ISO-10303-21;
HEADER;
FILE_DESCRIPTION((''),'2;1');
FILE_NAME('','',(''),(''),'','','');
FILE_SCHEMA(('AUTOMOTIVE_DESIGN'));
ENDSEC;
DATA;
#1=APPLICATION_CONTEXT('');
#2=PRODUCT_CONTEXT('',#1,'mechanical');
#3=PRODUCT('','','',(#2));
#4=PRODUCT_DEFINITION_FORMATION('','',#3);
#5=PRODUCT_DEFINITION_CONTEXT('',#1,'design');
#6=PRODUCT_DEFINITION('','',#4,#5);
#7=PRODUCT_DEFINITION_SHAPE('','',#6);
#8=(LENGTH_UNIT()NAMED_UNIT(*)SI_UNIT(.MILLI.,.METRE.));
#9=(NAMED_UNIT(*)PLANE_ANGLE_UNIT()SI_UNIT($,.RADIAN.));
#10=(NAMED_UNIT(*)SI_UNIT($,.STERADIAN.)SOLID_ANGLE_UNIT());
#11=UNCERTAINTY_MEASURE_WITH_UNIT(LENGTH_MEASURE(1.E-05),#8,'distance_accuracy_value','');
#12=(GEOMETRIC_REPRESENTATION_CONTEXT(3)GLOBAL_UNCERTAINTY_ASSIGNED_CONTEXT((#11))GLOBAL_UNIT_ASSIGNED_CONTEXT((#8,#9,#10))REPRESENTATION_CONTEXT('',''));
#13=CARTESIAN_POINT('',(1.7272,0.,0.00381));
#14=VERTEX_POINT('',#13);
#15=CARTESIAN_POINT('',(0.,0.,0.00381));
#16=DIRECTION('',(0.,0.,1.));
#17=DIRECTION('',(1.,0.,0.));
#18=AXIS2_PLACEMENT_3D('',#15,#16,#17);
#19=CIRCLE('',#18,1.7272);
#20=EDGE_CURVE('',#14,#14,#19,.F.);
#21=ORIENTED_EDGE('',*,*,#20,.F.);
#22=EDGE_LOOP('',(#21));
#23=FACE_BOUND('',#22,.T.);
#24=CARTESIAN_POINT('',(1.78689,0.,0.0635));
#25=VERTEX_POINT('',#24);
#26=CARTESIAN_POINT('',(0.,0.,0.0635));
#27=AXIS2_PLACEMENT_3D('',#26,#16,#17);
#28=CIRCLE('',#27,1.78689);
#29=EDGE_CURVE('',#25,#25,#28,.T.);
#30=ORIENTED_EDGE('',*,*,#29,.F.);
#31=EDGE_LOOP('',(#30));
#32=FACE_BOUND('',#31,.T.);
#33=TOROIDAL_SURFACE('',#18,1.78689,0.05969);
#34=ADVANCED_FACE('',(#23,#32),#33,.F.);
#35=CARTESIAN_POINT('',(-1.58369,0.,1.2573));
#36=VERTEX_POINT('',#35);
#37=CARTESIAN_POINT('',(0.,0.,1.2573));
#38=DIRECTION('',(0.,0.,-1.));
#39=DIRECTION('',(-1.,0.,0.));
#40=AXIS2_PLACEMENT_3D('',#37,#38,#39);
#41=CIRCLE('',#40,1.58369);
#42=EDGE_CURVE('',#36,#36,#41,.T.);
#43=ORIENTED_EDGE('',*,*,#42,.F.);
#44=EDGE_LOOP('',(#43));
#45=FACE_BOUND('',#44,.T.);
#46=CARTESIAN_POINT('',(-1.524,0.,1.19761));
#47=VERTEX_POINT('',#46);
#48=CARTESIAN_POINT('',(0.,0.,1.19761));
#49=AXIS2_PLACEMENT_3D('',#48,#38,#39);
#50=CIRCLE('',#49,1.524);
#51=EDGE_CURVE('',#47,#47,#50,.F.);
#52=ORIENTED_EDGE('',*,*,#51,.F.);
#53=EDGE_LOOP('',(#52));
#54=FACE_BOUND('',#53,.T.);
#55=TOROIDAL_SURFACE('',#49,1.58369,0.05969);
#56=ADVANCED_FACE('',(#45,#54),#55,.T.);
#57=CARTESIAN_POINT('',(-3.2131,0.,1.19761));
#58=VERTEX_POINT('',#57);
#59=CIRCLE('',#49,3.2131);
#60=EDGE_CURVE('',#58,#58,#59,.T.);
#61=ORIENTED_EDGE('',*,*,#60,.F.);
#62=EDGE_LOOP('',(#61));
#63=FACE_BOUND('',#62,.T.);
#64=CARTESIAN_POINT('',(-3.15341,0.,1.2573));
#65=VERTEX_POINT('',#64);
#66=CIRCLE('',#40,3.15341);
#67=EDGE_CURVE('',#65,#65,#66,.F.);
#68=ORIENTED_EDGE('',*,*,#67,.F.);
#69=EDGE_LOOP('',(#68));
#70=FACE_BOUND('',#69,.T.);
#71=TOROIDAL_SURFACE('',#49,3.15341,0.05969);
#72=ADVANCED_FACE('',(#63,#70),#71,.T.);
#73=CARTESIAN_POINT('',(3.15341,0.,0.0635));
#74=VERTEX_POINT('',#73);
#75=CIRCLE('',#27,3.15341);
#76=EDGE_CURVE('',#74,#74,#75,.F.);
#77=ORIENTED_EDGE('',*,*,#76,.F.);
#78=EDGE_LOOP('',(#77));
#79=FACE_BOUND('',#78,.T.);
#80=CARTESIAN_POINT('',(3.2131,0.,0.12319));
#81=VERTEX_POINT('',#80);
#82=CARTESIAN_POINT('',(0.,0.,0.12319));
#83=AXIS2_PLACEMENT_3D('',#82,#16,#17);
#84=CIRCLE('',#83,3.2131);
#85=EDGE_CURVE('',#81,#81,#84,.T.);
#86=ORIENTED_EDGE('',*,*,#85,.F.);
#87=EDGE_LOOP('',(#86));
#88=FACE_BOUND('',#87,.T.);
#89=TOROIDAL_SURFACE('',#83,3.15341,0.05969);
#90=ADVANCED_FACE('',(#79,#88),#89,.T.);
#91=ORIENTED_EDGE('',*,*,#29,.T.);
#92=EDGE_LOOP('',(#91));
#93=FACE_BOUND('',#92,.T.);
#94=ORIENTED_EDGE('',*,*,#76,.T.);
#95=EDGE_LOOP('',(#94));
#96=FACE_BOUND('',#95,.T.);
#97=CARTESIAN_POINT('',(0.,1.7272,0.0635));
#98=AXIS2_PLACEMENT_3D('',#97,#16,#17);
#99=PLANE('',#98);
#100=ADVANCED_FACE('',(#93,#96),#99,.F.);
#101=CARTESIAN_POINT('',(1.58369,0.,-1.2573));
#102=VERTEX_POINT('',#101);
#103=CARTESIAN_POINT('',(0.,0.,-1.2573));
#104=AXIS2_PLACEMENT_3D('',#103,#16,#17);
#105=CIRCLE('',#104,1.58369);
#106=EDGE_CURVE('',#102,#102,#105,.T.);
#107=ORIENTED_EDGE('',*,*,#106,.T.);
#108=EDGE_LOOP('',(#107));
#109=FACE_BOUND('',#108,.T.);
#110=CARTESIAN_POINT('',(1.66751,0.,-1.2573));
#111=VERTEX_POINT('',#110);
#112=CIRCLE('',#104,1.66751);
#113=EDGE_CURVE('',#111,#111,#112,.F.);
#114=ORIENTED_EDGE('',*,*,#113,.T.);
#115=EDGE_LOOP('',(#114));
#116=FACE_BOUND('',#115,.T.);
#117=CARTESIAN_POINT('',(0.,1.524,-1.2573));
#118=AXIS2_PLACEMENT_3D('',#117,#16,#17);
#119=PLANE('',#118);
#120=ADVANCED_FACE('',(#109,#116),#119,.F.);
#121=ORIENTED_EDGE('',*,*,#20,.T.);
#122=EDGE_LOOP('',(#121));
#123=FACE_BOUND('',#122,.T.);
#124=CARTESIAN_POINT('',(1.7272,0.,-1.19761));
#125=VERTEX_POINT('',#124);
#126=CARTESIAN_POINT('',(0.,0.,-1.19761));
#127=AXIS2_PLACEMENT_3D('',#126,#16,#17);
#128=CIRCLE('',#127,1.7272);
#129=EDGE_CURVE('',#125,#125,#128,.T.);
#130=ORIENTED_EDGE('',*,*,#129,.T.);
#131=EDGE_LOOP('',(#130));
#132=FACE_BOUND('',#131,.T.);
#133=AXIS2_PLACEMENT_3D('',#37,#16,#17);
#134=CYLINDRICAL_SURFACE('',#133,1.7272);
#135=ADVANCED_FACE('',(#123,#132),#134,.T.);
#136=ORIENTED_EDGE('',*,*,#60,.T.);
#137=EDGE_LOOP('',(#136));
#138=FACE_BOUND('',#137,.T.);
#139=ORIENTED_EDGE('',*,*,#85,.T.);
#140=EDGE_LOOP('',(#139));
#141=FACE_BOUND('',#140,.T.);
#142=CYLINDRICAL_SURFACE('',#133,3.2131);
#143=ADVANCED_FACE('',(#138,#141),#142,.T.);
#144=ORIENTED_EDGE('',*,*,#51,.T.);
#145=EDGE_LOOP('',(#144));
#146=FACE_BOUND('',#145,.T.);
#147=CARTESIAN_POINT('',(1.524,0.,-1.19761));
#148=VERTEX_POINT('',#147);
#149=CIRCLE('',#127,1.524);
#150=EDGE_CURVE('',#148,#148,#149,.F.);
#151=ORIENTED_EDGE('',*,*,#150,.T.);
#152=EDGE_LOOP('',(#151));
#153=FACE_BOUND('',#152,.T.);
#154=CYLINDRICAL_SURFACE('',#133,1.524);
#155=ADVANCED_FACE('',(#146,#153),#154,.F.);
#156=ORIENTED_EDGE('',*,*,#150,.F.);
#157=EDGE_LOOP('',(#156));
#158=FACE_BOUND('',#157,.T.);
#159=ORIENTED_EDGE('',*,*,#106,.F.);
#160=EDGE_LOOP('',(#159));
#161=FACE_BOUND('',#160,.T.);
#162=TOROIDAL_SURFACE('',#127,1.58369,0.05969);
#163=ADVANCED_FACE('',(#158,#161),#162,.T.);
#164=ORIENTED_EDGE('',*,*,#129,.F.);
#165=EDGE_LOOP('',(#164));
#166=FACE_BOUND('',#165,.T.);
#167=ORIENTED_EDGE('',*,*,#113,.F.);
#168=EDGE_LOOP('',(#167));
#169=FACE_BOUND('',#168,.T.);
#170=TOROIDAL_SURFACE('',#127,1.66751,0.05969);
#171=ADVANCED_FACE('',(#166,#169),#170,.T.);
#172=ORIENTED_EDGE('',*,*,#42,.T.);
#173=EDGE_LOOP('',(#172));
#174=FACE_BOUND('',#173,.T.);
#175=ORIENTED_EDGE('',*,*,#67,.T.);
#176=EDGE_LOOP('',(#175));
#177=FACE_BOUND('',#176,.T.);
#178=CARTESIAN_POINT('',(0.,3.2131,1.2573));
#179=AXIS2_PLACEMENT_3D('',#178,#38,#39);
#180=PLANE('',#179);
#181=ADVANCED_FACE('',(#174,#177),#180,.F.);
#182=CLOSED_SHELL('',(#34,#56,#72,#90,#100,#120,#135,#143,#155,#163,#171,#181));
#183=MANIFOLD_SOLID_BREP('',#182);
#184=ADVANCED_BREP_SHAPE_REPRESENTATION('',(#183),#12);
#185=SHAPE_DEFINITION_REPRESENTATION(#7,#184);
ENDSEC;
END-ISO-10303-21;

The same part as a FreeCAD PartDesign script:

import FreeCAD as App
import Part
import Sketcher
Q = App.Units.Quantity


def edges_at(feature, points):
    """Names of the edges that pass closest to the given points."""
    edges = feature.Shape.Edges
    near = lambda p: min(range(len(edges)), key=lambda i: edges[i].distToShape(Part.Vertex(*p))[0])
    return sorted({f"Edge{near(p) + 1}" for p in points})


def add_polygon(sketch, points):
    """Adds a closed chain of lines whose ends are joined by coincident constraints."""
    first, n = sketch.GeometryCount, len(points)
    for a, b in zip(points, points[1:] + points[:1]):
        sketch.addGeometry(Part.LineSegment(App.Vector(*a, 0), App.Vector(*b, 0)), False)
    for i in range(n):
        sketch.addConstraint(Sketcher.Constraint("Coincident", first + i, 2, first + (i + 1) % n, 1))

doc = App.newDocument("Part")
body = doc.addObject("PartDesign::Body", "Body")

sketch1 = doc.addObject("Sketcher::SketchObject", "Sketch")
body.addObject(sketch1)
sketch1.AttachmentSupport = (doc.YZ_Plane, [""])
sketch1.MapMode = "FlatFace"
add_polygon(sketch1, [(1.524, 1.2573), (1.524, -1.2573), (1.7272, -1.2573), (1.7272, 0.0635), (3.2131, 0.0635), (3.2131, 1.2573)])
sketch1.addConstraint([
    Sketcher.Constraint("Vertical", 0),
    Sketcher.Constraint("Horizontal", 1),
    Sketcher.Constraint("Vertical", 2),
    Sketcher.Constraint("Horizontal", 3),
    Sketcher.Constraint("Vertical", 4),
    Sketcher.Constraint("Horizontal", 5),
    Sketcher.Constraint("DistanceX", 1, 1, 1, 2, Q("0.008 in")),
    Sketcher.Constraint("DistanceY", 0, 2, 0, 1, Q("0.099 in")),
    Sketcher.Constraint("DistanceY", 2, 1, 2, 2, Q("0.052 in")),
    Sketcher.Constraint("DistanceX", -1, 1, 0, 2, Q("0.06 in")),
    Sketcher.Constraint("DistanceX", 3, 1, 3, 2, Q("0.0585 in")),
    Sketcher.Constraint("DistanceY", 0, 2, -1, 1, Q("0.0495 in")),
])
revolution = doc.addObject("PartDesign::Revolution", "Revolution")
body.addObject(revolution)
revolution.Profile = sketch1
revolution.ReferenceAxis = (sketch1, ["V_Axis"])
revolution.Angle = 360
doc.recompute()

fillet = doc.addObject("PartDesign::Fillet", "Fillet")
body.addObject(fillet)
fillet.Base = (revolution, edges_at(revolution, [
    (-3.213, 0, 1.257),
    (-3.213, 0, 0.064),
    (-1.727, 0, 0.064),
    (-1.727, 0, -1.257),
    (-1.524, 0, -1.257),
    (-1.524, 0, 1.257),
]))
fillet.Radius = 0.05969

doc.recompute()
